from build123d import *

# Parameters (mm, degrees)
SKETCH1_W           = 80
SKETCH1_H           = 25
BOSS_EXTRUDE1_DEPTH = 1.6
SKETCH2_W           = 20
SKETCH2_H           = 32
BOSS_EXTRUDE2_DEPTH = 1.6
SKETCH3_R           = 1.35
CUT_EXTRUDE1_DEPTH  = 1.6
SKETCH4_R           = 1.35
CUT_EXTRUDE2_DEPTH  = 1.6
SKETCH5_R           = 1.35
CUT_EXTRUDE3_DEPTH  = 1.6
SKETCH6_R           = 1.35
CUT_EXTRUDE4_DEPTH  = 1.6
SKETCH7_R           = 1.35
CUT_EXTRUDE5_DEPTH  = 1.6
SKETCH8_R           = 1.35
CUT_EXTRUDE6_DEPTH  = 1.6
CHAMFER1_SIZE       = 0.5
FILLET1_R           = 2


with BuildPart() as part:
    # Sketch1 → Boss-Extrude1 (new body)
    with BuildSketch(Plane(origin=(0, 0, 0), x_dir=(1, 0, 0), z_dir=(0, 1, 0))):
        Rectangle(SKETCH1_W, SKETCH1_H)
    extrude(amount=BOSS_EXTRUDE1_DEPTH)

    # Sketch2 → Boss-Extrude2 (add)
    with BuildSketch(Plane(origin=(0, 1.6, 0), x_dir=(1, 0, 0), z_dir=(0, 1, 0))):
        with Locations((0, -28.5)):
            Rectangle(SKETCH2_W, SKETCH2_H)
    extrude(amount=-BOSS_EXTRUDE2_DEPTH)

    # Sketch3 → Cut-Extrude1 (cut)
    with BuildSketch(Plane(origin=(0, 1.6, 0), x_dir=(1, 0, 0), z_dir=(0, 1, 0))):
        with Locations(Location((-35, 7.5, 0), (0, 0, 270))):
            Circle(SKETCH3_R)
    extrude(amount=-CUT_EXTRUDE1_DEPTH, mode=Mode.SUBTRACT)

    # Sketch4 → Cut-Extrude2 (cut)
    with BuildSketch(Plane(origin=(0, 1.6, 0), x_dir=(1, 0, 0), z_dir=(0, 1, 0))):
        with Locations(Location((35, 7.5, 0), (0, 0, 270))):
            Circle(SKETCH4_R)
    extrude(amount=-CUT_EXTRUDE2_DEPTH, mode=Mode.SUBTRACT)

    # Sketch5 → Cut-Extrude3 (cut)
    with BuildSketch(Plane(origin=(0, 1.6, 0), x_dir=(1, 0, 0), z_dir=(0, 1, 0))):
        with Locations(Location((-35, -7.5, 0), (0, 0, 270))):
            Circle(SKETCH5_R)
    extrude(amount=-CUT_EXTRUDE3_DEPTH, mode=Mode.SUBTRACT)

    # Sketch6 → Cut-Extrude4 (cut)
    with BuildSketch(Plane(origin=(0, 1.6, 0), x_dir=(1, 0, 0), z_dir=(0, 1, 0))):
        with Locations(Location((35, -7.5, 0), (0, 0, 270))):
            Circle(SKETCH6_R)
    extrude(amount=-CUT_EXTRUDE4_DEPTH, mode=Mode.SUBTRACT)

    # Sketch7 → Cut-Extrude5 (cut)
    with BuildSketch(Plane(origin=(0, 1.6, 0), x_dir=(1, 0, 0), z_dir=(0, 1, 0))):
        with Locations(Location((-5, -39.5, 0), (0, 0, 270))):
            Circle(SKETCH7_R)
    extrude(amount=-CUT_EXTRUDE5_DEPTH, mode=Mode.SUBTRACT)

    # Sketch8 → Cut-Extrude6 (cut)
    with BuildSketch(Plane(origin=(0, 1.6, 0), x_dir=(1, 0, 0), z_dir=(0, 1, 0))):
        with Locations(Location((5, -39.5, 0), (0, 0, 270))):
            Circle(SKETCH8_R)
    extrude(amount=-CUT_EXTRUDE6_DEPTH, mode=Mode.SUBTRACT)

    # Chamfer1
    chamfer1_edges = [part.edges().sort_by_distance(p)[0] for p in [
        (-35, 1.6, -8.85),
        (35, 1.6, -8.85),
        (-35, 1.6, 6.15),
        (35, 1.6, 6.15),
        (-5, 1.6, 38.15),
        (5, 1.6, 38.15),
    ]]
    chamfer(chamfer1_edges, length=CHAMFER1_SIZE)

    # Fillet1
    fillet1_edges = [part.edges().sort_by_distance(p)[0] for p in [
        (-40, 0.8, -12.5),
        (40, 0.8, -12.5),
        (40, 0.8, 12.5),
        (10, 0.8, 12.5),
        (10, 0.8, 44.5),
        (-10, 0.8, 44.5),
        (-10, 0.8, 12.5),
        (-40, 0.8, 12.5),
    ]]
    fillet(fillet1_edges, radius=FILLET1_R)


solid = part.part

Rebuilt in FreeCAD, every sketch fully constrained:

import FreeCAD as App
import Part
import Sketcher

V = App.Vector
Q = App.Units.Quantity


def edges_at(feature, points):
    """Names of the edges that pass closest to the given points."""
    edges = feature.Shape.Edges
    near = lambda p: min(range(len(edges)), key=lambda i: edges[i].distToShape(Part.Vertex(*p))[0])
    return sorted({f"Edge{near(p) + 1}" for p in points})

doc = App.newDocument("Part")
body = doc.addObject("PartDesign::Body", "Body")

# Sketch on XZ plane
sketch1 = body.newObject("Sketcher::SketchObject", "Sketch")
sketch1.AttachmentSupport = (doc.getObject("XZ_Plane"), [""])
sketch1.MapMode = "FlatFace"
sketch1.addGeometry([
    Part.LineSegment(V(-40, -12, 0), V(-40, 12, 0)),
    Part.LineSegment(V(-40, 12, 0), V(40, 12, 0)),
    Part.LineSegment(V(40, 12, 0), V(40, -12, 0)),
    Part.LineSegment(V(40, -12, 0), V(-40, -12, 0)),
], False)
sketch1.addConstraint([
    Sketcher.Constraint("Coincident", 0, 2, 1, 1),
    Sketcher.Constraint("Coincident", 1, 2, 2, 1),
    Sketcher.Constraint("Coincident", 2, 2, 3, 1),
    Sketcher.Constraint("Coincident", 3, 2, 0, 1),
    Sketcher.Constraint("Vertical", 0),
    Sketcher.Constraint("Horizontal", 1),
    Sketcher.Constraint("Vertical", 2),
    Sketcher.Constraint("Horizontal", 3),
    Sketcher.Constraint("Symmetric", 0, 2, 2, 2, -1, 1),
    Sketcher.Constraint("DistanceX", 1, 1, 1, 2, Q("80 mm")),
    Sketcher.Constraint("DistanceY", 0, 1, 0, 2, Q("25 mm")),
])
pad1 = body.newObject("PartDesign::Pad", "Pad")
pad1.Profile = sketch1
pad1.Length = 1.6
pad1.Reversed = True

# Sketch on XZ plane
sketch2 = body.newObject("Sketcher::SketchObject", "Sketch001")
sketch2.AttachmentSupport = (doc.getObject("XZ_Plane"), [""])
sketch2.MapMode = "FlatFace"
sketch2.AttachmentOffset = App.Placement(V(0, 0, -1.6), App.Rotation())
sketch2.addGeometry([
    Part.LineSegment(V(-10, 12, 0), V(-10, 44, 0)),
    Part.LineSegment(V(-10, 44, 0), V(10, 44, 0)),
    Part.LineSegment(V(10, 44, 0), V(10, 12, 0)),
    Part.LineSegment(V(10, 12, 0), V(-10, 12, 0)),
], False)
sketch2.addConstraint([
    Sketcher.Constraint("Coincident", 0, 2, 1, 1),
    Sketcher.Constraint("Coincident", 1, 2, 2, 1),
    Sketcher.Constraint("Coincident", 2, 2, 3, 1),
    Sketcher.Constraint("Coincident", 3, 2, 0, 1),
    Sketcher.Constraint("Vertical", 0),
    Sketcher.Constraint("Horizontal", 1),
    Sketcher.Constraint("Vertical", 2),
    Sketcher.Constraint("Horizontal", 3),
    Sketcher.Constraint("DistanceX", 1, 1, 1, 2, Q("20 mm")),
    Sketcher.Constraint("DistanceY", 0, 1, 0, 2, Q("32 mm")),
    Sketcher.Constraint("DistanceX", 0, 2, -1, 1, Q("10 mm")),
    Sketcher.Constraint("DistanceY", -1, 1, 0, 2, Q("44.5 mm")),
])
pad2 = body.newObject("PartDesign::Pad", "Pad001")
pad2.Profile = sketch2
pad2.Length = 1.6

# Sketch on XZ plane
sketch3 = body.newObject("Sketcher::SketchObject", "Sketch002")
sketch3.AttachmentSupport = (doc.getObject("XZ_Plane"), [""])
sketch3.MapMode = "FlatFace"
sketch3.AttachmentOffset = App.Placement(V(0, 0, -1.6), App.Rotation())
sketch3.addGeometry(Part.Circle(V(-35, -7.5, 0), V(0, 0, 1), 1.4), False)
sketch3.addConstraint([
    Sketcher.Constraint("Diameter", 0, Q("2.7 mm")),
    Sketcher.Constraint("DistanceX", 0, 3, -1, 1, Q("35 mm")),
    Sketcher.Constraint("DistanceY", 0, 3, -1, 1, Q("7.5 mm")),
])
pocket1 = body.newObject("PartDesign::Pocket", "Pocket")
pocket1.Profile = sketch3
pocket1.Length = 1.6
pocket1.Reversed = True

# Sketch on XZ plane
sketch4 = body.newObject("Sketcher::SketchObject", "Sketch003")
sketch4.AttachmentSupport = (doc.getObject("XZ_Plane"), [""])
sketch4.MapMode = "FlatFace"
sketch4.AttachmentOffset = App.Placement(V(0, 0, -1.6), App.Rotation())
sketch4.addGeometry(Part.Circle(V(35, -7.5, 0), V(0, 0, 1), 1.4), False)
sketch4.addConstraint([
    Sketcher.Constraint("Diameter", 0, Q("2.7 mm")),
    Sketcher.Constraint("DistanceX", -1, 1, 0, 3, Q("35 mm")),
    Sketcher.Constraint("DistanceY", 0, 3, -1, 1, Q("7.5 mm")),
])
pocket2 = body.newObject("PartDesign::Pocket", "Pocket001")
pocket2.Profile = sketch4
pocket2.Length = 1.6
pocket2.Reversed = True

# Sketch on XZ plane
sketch5 = body.newObject("Sketcher::SketchObject", "Sketch004")
sketch5.AttachmentSupport = (doc.getObject("XZ_Plane"), [""])
sketch5.MapMode = "FlatFace"
sketch5.AttachmentOffset = App.Placement(V(0, 0, -1.6), App.Rotation())
sketch5.addGeometry(Part.Circle(V(-35, 7.5, 0), V(0, 0, 1), 1.4), False)
sketch5.addConstraint([
    Sketcher.Constraint("Diameter", 0, Q("2.7 mm")),
    Sketcher.Constraint("DistanceX", 0, 3, -1, 1, Q("35 mm")),
    Sketcher.Constraint("DistanceY", -1, 1, 0, 3, Q("7.5 mm")),
])
pocket3 = body.newObject("PartDesign::Pocket", "Pocket002")
pocket3.Profile = sketch5
pocket3.Length = 1.6
pocket3.Reversed = True

# Sketch on XZ plane
sketch6 = body.newObject("Sketcher::SketchObject", "Sketch005")
sketch6.AttachmentSupport = (doc.getObject("XZ_Plane"), [""])
sketch6.MapMode = "FlatFace"
sketch6.AttachmentOffset = App.Placement(V(0, 0, -1.6), App.Rotation())
sketch6.addGeometry(Part.Circle(V(35, 7.5, 0), V(0, 0, 1), 1.4), False)
sketch6.addConstraint([
    Sketcher.Constraint("Diameter", 0, Q("2.7 mm")),
    Sketcher.Constraint("DistanceX", -1, 1, 0, 3, Q("35 mm")),
    Sketcher.Constraint("DistanceY", -1, 1, 0, 3, Q("7.5 mm")),
])
pocket4 = body.newObject("PartDesign::Pocket", "Pocket003")
pocket4.Profile = sketch6
pocket4.Length = 1.6
pocket4.Reversed = True

# Sketch on XZ plane
sketch7 = body.newObject("Sketcher::SketchObject", "Sketch006")
sketch7.AttachmentSupport = (doc.getObject("XZ_Plane"), [""])
sketch7.MapMode = "FlatFace"
sketch7.AttachmentOffset = App.Placement(V(0, 0, -1.6), App.Rotation())
sketch7.addGeometry(Part.Circle(V(-5, 39.5, 0), V(0, 0, 1), 1.4), False)
sketch7.addConstraint([
    Sketcher.Constraint("Diameter", 0, Q("2.7 mm")),
    Sketcher.Constraint("DistanceX", 0, 3, -1, 1, Q("5 mm")),
    Sketcher.Constraint("DistanceY", -1, 1, 0, 3, Q("39.5 mm")),
])
pocket5 = body.newObject("PartDesign::Pocket", "Pocket004")
pocket5.Profile = sketch7
pocket5.Length = 1.6
pocket5.Reversed = True

# Sketch on XZ plane
sketch8 = body.newObject("Sketcher::SketchObject", "Sketch007")
sketch8.AttachmentSupport = (doc.getObject("XZ_Plane"), [""])
sketch8.MapMode = "FlatFace"
sketch8.AttachmentOffset = App.Placement(V(0, 0, -1.6), App.Rotation())
sketch8.addGeometry(Part.Circle(V(5, 39.5, 0), V(0, 0, 1), 1.4), False)
sketch8.addConstraint([
    Sketcher.Constraint("Diameter", 0, Q("2.7 mm")),
    Sketcher.Constraint("DistanceX", -1, 1, 0, 3, Q("5 mm")),
    Sketcher.Constraint("DistanceY", -1, 1, 0, 3, Q("39.5 mm")),
])
pocket6 = body.newObject("PartDesign::Pocket", "Pocket005")
pocket6.Profile = sketch8
pocket6.Length = 1.6
pocket6.Reversed = True
doc.recompute()

chamfer = body.newObject("PartDesign::Chamfer", "Chamfer")
chamfer.Base = (pocket6, edges_at(pocket6, [
    (-35, 1.6, -8.85),
    (35, 1.6, -8.85),
    (-35, 1.6, 6.15),
    (35, 1.6, 6.15),
    (-5, 1.6, 38.15),
    (5, 1.6, 38.15),
]))
chamfer.Size = 0.5
doc.recompute()

fillet = body.newObject("PartDesign::Fillet", "Fillet")
fillet.Base = (chamfer, edges_at(chamfer, [
    (-40, 0.8, -12.5),
    (40, 0.8, -12.5),
    (40, 0.8, 12.5),
    (10, 0.8, 12.5),
    (10, 0.8, 44.5),
    (-10, 0.8, 44.5),
    (-10, 0.8, 12.5),
    (-40, 0.8, 12.5),
]))
fillet.Radius = 2

doc.recompute()
